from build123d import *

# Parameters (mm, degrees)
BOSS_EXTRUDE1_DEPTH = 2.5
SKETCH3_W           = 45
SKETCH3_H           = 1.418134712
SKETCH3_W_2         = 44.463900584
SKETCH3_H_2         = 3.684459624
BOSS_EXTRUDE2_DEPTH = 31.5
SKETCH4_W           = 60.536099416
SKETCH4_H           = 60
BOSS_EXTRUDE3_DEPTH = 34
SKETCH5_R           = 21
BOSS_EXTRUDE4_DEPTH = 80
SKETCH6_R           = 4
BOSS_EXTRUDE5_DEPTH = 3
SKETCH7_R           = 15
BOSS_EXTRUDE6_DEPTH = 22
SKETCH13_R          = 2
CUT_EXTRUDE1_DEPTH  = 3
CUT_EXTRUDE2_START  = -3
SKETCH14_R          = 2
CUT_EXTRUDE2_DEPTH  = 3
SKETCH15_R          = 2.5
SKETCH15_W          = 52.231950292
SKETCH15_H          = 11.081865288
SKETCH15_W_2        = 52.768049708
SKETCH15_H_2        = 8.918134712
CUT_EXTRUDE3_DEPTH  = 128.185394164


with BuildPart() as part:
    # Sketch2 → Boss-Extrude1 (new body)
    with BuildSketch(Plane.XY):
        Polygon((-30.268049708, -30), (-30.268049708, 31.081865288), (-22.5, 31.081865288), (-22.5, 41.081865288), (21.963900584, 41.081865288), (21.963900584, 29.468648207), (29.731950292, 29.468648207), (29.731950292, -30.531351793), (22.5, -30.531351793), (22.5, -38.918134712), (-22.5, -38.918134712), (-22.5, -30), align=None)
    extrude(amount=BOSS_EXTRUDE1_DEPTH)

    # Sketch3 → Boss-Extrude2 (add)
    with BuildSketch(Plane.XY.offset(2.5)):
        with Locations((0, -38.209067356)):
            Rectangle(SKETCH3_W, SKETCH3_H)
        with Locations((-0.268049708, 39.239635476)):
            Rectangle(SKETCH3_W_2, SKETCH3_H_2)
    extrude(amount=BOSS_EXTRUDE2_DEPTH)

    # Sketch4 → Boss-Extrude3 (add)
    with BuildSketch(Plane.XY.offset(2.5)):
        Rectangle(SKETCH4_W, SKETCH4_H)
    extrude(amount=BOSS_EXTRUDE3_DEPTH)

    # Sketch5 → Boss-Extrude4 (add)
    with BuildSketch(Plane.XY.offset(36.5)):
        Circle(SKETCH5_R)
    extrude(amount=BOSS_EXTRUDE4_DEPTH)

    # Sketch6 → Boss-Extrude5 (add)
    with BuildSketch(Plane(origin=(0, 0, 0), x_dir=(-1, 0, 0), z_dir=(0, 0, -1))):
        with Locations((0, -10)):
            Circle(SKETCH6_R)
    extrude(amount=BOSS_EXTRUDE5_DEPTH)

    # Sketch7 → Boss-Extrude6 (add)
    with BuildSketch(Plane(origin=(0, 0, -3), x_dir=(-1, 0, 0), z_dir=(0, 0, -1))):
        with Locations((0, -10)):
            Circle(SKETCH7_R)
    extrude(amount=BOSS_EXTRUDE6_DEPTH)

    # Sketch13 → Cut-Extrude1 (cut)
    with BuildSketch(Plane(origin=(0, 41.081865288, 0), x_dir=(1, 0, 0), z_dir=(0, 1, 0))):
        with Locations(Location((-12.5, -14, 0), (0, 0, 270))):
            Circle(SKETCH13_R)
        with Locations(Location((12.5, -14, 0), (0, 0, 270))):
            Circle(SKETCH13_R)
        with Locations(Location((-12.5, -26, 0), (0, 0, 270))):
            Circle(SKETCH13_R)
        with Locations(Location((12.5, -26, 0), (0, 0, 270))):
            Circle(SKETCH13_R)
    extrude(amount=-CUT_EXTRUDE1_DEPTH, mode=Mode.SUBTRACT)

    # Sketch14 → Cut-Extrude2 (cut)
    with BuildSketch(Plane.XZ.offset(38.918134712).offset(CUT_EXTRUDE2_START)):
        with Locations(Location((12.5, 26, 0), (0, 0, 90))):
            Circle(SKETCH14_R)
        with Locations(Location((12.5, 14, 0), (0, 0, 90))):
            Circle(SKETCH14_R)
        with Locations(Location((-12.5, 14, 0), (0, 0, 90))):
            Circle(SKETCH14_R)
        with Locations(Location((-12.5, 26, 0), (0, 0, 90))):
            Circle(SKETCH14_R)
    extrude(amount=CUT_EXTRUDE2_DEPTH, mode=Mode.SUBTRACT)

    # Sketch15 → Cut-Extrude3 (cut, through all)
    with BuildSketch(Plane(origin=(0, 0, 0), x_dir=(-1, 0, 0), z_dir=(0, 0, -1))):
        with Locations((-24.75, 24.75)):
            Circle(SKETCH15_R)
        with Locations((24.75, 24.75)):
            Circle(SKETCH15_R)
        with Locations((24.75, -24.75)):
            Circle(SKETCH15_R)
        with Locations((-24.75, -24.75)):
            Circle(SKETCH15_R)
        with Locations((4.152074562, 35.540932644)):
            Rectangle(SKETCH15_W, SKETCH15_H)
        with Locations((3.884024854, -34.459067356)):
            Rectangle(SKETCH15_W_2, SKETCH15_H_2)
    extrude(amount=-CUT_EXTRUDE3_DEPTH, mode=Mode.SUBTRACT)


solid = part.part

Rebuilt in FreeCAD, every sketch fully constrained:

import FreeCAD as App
import Part
import Sketcher
Q = App.Units.Quantity


def add_polygon(sketch, points):
    """Adds a closed chain of lines whose ends are joined by coincident constraints."""
    first, n = sketch.GeometryCount, len(points)
    for a, b in zip(points, points[1:] + points[:1]):
        sketch.addGeometry(Part.LineSegment(App.Vector(*a, 0), App.Vector(*b, 0)), False)
    for i in range(n):
        sketch.addConstraint(Sketcher.Constraint("Coincident", first + i, 2, first + (i + 1) % n, 1))

doc = App.newDocument("Part")
body = doc.addObject("PartDesign::Body", "Body")

# Sketch on XY plane
sketch1 = doc.addObject("Sketcher::SketchObject", "Sketch")
body.addObject(sketch1)
sketch1.AttachmentSupport = (doc.XY_Plane, [""])
sketch1.MapMode = "FlatFace"
add_polygon(sketch1, [(-30.26805, 31.081865), (-30.26805, -30), (-22.5, -30), (-22.5, -38.918135), (22.5, -38.918135), (22.5, -30.531352), (29.73195, -30.531352), (29.73195, 29.468648), (21.963901, 29.468648), (21.963901, 41.081865), (-22.5, 41.081865), (-22.5, 31.081865)])  # lines 0-11
sketch1.addConstraint([
    Sketcher.Constraint("Vertical", 0),
    Sketcher.Constraint("Horizontal", 1),
    Sketcher.Constraint("Vertical", 2),
    Sketcher.Constraint("Horizontal", 3),
    Sketcher.Constraint("Vertical", 4),
    Sketcher.Constraint("Horizontal", 5),
    Sketcher.Constraint("Vertical", 6),
    Sketcher.Constraint("Horizontal", 7),
    Sketcher.Constraint("Vertical", 8),
    Sketcher.Constraint("Horizontal", 9),
    Sketcher.Constraint("Vertical", 10),
    Sketcher.Constraint("Horizontal", 11),
    Sketcher.Constraint("Vertical", 2, 2, 9, 2),
    Sketcher.Constraint("Equal", 1, 7),
    Sketcher.Constraint("DistanceX", 3, 1, 3, 2, Q("45 mm")),
    Sketcher.Constraint("DistanceY", 6, 1, 6, 2, Q("60 mm")),
    Sketcher.Constraint("DistanceY", 10, 2, 10, 1, Q("10 mm")),
    Sketcher.Constraint("DistanceY", 0, 2, -1, 1, Q("30 mm")),
    Sketcher.Constraint("DistanceX", 0, 2, 5, 2, Q("60 mm")),
    Sketcher.Constraint("DistanceY", 3, 2, 8, 2, Q("80 mm")),
    Sketcher.Constraint("DistanceX", 1, 2, -1, 1, Q("22.5 mm")),
    Sketcher.Constraint("DistanceX", 9, 2, 9, 1, Q("44.463901 mm")),
    Sketcher.Constraint("DistanceY", 0, 2, 0, 1, Q("61.081865 mm")),
    Sketcher.Constraint("DistanceY", 4, 1, 4, 2, Q("8.386783 mm")),
])
pad1 = doc.addObject("PartDesign::Pad", "Pad")
body.addObject(pad1)
pad1.Profile = sketch1
pad1.Length = 2.5

# Sketch on XY plane
sketch2 = doc.addObject("Sketcher::SketchObject", "Sketch001")
body.addObject(sketch2)
sketch2.AttachmentSupport = (doc.XY_Plane, [""])
sketch2.MapMode = "FlatFace"
sketch2.AttachmentOffset = App.Placement(App.Vector(0, 0, 2.5), App.Rotation())
add_polygon(sketch2, [(-22.5, -37.5), (-22.5, -38.918135), (22.5, -38.918135), (22.5, -37.5)])  # lines 0-3
add_polygon(sketch2, [(-22.5, 41.081865), (-22.5, 37.397406), (21.963901, 37.397406), (21.963901, 41.081865)])  # lines 4-7
sketch2.addConstraint([
    Sketcher.Constraint("Vertical", 0),
    Sketcher.Constraint("Horizontal", 1),
    Sketcher.Constraint("Vertical", 2),
    Sketcher.Constraint("Horizontal", 3),
    Sketcher.Constraint("Vertical", 4),
    Sketcher.Constraint("Horizontal", 5),
    Sketcher.Constraint("Vertical", 6),
    Sketcher.Constraint("Horizontal", 7),
    Sketcher.Constraint("Vertical", 3, 2, 4, 2),
    Sketcher.Constraint("DistanceX", 1, 1, 1, 2, Q("45 mm")),
    Sketcher.Constraint("DistanceY", 1, 2, 6, 2, Q("80 mm")),
    Sketcher.Constraint("DistanceX", 0, 2, -1, 1, Q("22.5 mm")),
    Sketcher.Constraint("DistanceY", 2, 2, -1, 1, Q("37.5 mm")),
    Sketcher.Constraint("DistanceX", 5, 1, 5, 2, Q("44.463901 mm")),
    Sketcher.Constraint("DistanceY", 4, 2, 4, 1, Q("3.68446 mm")),
    Sketcher.Constraint("DistanceY", 0, 2, 0, 1, Q("1.418135 mm")),
])
pad2 = doc.addObject("PartDesign::Pad", "Pad001")
body.addObject(pad2)
pad2.Profile = sketch2
pad2.Length = 31.5

# Sketch on XY plane
sketch3 = doc.addObject("Sketcher::SketchObject", "Sketch002")
body.addObject(sketch3)
sketch3.AttachmentSupport = (doc.XY_Plane, [""])
sketch3.MapMode = "FlatFace"
sketch3.AttachmentOffset = App.Placement(App.Vector(0, 0, 2.5), App.Rotation())
add_polygon(sketch3, [(-30.26805, 30), (-30.26805, -30), (30.26805, -30), (30.26805, 30)])  # lines 0-3
sketch3.addConstraint([
    Sketcher.Constraint("Vertical", 0),
    Sketcher.Constraint("Horizontal", 1),
    Sketcher.Constraint("Vertical", 2),
    Sketcher.Constraint("Horizontal", 3),
    Sketcher.Constraint("Symmetric", 0, 2, 2, 2, -1, 1),
    Sketcher.Constraint("DistanceY", 0, 2, 0, 1, Q("60 mm")),
    Sketcher.Constraint("DistanceX", 1, 1, 1, 2, Q("60.536099 mm")),
])
pad3 = doc.addObject("PartDesign::Pad", "Pad002")
body.addObject(pad3)
pad3.Profile = sketch3
pad3.Length = 34

# Sketch on XY plane
sketch4 = doc.addObject("Sketcher::SketchObject", "Sketch003")
body.addObject(sketch4)
sketch4.AttachmentSupport = (doc.XY_Plane, [""])
sketch4.MapMode = "FlatFace"
sketch4.AttachmentOffset = App.Placement(App.Vector(0, 0, 36.5), App.Rotation())
sketch4.addGeometry(Part.Circle(App.Vector(0, 0, 0), App.Vector(0, 0, 1), 21), False)
sketch4.addConstraint([
    Sketcher.Constraint("Coincident", 0, 3, -1, 1),
    Sketcher.Constraint("Diameter", 0, Q("42 mm")),
])
pad4 = doc.addObject("PartDesign::Pad", "Pad003")
body.addObject(pad4)
pad4.Profile = sketch4
pad4.Length = 80

# Sketch on XY plane
sketch5 = doc.addObject("Sketcher::SketchObject", "Sketch004")
body.addObject(sketch5)
sketch5.AttachmentSupport = (doc.XY_Plane, [""])
sketch5.MapMode = "FlatFace"
sketch5.addGeometry(Part.Circle(App.Vector(0, -10, 0), App.Vector(0, 0, 1), 4), False)
sketch5.addConstraint([
    Sketcher.Constraint("PointOnObject", 0, 3, -2),
    Sketcher.Constraint("Diameter", 0, Q("8 mm")),
    Sketcher.Constraint("DistanceY", 0, 3, -1, 1, Q("10 mm")),
])
pad5 = doc.addObject("PartDesign::Pad", "Pad004")
body.addObject(pad5)
pad5.Profile = sketch5
pad5.Length = 3
pad5.Reversed = True

# Sketch on XY plane
sketch6 = doc.addObject("Sketcher::SketchObject", "Sketch005")
body.addObject(sketch6)
sketch6.AttachmentSupport = (doc.XY_Plane, [""])
sketch6.MapMode = "FlatFace"
sketch6.AttachmentOffset = App.Placement(App.Vector(0, 0, -3), App.Rotation())
sketch6.addGeometry(Part.Circle(App.Vector(0, -10, 0), App.Vector(0, 0, 1), 15), False)
sketch6.addConstraint([
    Sketcher.Constraint("PointOnObject", 0, 3, -2),
    Sketcher.Constraint("Diameter", 0, Q("30 mm")),
    Sketcher.Constraint("DistanceY", 0, 3, -1, 1, Q("10 mm")),
])
pad6 = doc.addObject("PartDesign::Pad", "Pad005")
body.addObject(pad6)
pad6.Profile = sketch6
pad6.Length = 22
pad6.Reversed = True

# Sketch on XZ plane
sketch7 = doc.addObject("Sketcher::SketchObject", "Sketch006")
body.addObject(sketch7)
sketch7.AttachmentSupport = (doc.XZ_Plane, [""])
sketch7.MapMode = "FlatFace"
sketch7.AttachmentOffset = App.Placement(App.Vector(0, 0, -41.081865), App.Rotation())
sketch7.addGeometry([
    Part.Circle(App.Vector(-12.5, 14, 0), App.Vector(0, 0, 1), 2),
    Part.Circle(App.Vector(12.5, 14, 0), App.Vector(0, 0, 1), 2),
    Part.Circle(App.Vector(-12.5, 26, 0), App.Vector(0, 0, 1), 2),
    Part.Circle(App.Vector(12.5, 26, 0), App.Vector(0, 0, 1), 2),
], False)
sketch7.addConstraint([
    Sketcher.Constraint("Equal", 0, 1),
    Sketcher.Constraint("Equal", 1, 2),
    Sketcher.Constraint("Equal", 2, 3),
    Sketcher.Constraint("Symmetric", 0, 3, 1, 3, -2),
    Sketcher.Constraint("Symmetric", 2, 3, 3, 3, -2),
    Sketcher.Constraint("Vertical", 0, 3, 2, 3),
    Sketcher.Constraint("Diameter", 0, Q("4 mm")),
    Sketcher.Constraint("DistanceY", -1, 1, 0, 3, Q("14 mm")),
    Sketcher.Constraint("DistanceY", -1, 1, 2, 3, Q("26 mm")),
    Sketcher.Constraint("DistanceX", 0, 3, 1, 3, Q("25 mm")),
])
pocket1 = doc.addObject("PartDesign::Pocket", "Pocket")
body.addObject(pocket1)
pocket1.Profile = sketch7
pocket1.Length = 3
pocket1.Reversed = True

# Sketch on XZ plane
sketch8 = doc.addObject("Sketcher::SketchObject", "Sketch007")
body.addObject(sketch8)
sketch8.AttachmentSupport = (doc.XZ_Plane, [""])
sketch8.MapMode = "FlatFace"
sketch8.AttachmentOffset = App.Placement(App.Vector(0, 0, 35.918135), App.Rotation())
sketch8.addGeometry([
    Part.Circle(App.Vector(12.5, 26, 0), App.Vector(0, 0, 1), 2),
    Part.Circle(App.Vector(12.5, 14, 0), App.Vector(0, 0, 1), 2),
    Part.Circle(App.Vector(-12.5, 14, 0), App.Vector(0, 0, 1), 2),
    Part.Circle(App.Vector(-12.5, 26, 0), App.Vector(0, 0, 1), 2),
], False)
sketch8.addConstraint([
    Sketcher.Constraint("Equal", 0, 1),
    Sketcher.Constraint("Equal", 1, 2),
    Sketcher.Constraint("Equal", 2, 3),
    Sketcher.Constraint("Symmetric", 1, 3, 2, 3, -2),
    Sketcher.Constraint("Symmetric", 0, 3, 3, 3, -2),
    Sketcher.Constraint("Vertical", 0, 3, 1, 3),
    Sketcher.Constraint("Diameter", 0, Q("4 mm")),
    Sketcher.Constraint("DistanceY", -1, 1, 0, 3, Q("26 mm")),
    Sketcher.Constraint("DistanceY", -1, 1, 1, 3, Q("14 mm")),
    Sketcher.Constraint("DistanceX", 2, 3, 1, 3, Q("25 mm")),
])
pocket2 = doc.addObject("PartDesign::Pocket", "Pocket001")
body.addObject(pocket2)
pocket2.Profile = sketch8
pocket2.Length = 3
pocket2.Reversed = True

# Sketch on XY plane
sketch9 = doc.addObject("Sketcher::SketchObject", "Sketch008")
body.addObject(sketch9)
sketch9.AttachmentSupport = (doc.XY_Plane, [""])
sketch9.MapMode = "FlatFace"
sketch9.addGeometry(Part.Circle(App.Vector(24.75, 24.75, 0), App.Vector(0, 0, 1), 2.5), False)  # 0
sketch9.addGeometry(Part.Circle(App.Vector(-24.75, 24.75, 0), App.Vector(0, 0, 1), 2.5), False)  # 1
sketch9.addGeometry(Part.Circle(App.Vector(-24.75, -24.75, 0), App.Vector(0, 0, 1), 2.5), False)  # 2
sketch9.addGeometry(Part.Circle(App.Vector(24.75, -24.75, 0), App.Vector(0, 0, 1), 2.5), False)  # 3
add_polygon(sketch9, [(21.963901, 41.081865), (21.963901, 30), (-30.26805, 30), (-30.26805, 41.081865)])  # lines 4-7
add_polygon(sketch9, [(22.5, -30), (22.5, -38.918135), (-30.26805, -38.918135), (-30.26805, -30)])  # lines 8-11
sketch9.addConstraint([
    Sketcher.Constraint("Vertical", 4),
    Sketcher.Constraint("Horizontal", 5),
    Sketcher.Constraint("Vertical", 6),
    Sketcher.Constraint("Horizontal", 7),
    Sketcher.Constraint("Vertical", 8),
    Sketcher.Constraint("Horizontal", 9),
    Sketcher.Constraint("Vertical", 10),
    Sketcher.Constraint("Horizontal", 11),
    Sketcher.Constraint("Equal", 0, 1),
    Sketcher.Constraint("Equal", 1, 2),
    Sketcher.Constraint("Equal", 2, 3),
    Sketcher.Constraint("Symmetric", 0, 3, 2, 3, -1, 1),
    Sketcher.Constraint("Symmetric", 1, 3, 3, 3, -1, 1),
    Sketcher.Constraint("Symmetric", 0, 3, 1, 3, -2),
    Sketcher.Constraint("Symmetric", 5, 2, 10, 2, -1),
    Sketcher.Constraint("Diameter", 0, Q("5 mm")),
    Sketcher.Constraint("DistanceY", -1, 1, 4, 2, Q("30 mm")),
    Sketcher.Constraint("DistanceX", -1, 1, 8, 2, Q("22.5 mm")),
    Sketcher.Constraint("DistanceX", 1, 3, 0, 3, Q("49.5 mm")),
    Sketcher.Constraint("DistanceY", 2, 3, 1, 3, Q("49.5 mm")),
    Sketcher.Constraint("DistanceX", 5, 2, 5, 1, Q("52.23195 mm")),
    Sketcher.Constraint("DistanceX", 9, 2, 9, 1, Q("52.76805 mm")),
    Sketcher.Constraint("DistanceY", 4, 2, 4, 1, Q("11.081865 mm")),
    Sketcher.Constraint("DistanceY", 8, 2, 8, 1, Q("8.918135 mm")),
])
pocket3 = doc.addObject("PartDesign::Pocket", "Pocket002")
body.addObject(pocket3)
pocket3.Profile = sketch9
pocket3.Type = "ThroughAll"
pocket3.Reversed = True

doc.recompute()
